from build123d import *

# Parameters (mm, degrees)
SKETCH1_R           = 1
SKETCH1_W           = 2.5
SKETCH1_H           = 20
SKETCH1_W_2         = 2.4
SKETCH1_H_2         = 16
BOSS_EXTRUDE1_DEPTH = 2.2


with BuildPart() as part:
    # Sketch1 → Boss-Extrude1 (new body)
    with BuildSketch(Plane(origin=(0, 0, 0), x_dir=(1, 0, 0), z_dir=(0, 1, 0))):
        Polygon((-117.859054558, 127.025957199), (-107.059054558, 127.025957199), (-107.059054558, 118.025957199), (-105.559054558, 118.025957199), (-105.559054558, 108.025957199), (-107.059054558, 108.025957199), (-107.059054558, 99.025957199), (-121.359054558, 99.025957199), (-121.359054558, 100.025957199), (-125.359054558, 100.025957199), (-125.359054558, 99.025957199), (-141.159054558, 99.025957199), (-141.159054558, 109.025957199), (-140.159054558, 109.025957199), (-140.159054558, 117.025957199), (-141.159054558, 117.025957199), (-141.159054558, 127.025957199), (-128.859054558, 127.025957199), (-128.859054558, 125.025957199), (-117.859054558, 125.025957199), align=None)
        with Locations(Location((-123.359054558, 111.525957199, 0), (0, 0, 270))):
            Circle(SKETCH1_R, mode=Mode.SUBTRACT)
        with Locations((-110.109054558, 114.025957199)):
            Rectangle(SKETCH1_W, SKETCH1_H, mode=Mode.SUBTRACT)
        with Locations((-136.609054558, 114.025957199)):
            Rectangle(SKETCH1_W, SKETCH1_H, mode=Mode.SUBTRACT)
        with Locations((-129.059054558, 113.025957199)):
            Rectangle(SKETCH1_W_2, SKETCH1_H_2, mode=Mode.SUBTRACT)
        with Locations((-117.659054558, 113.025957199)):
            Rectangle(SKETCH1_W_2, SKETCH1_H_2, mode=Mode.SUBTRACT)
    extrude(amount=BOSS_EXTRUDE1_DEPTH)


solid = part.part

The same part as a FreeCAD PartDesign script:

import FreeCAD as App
import Part
import Sketcher

doc = App.newDocument("Part")
body = doc.addObject("PartDesign::Body", "Body")

sketch1 = body.newObject("Sketcher::SketchObject", "Sketch")
sketch1.AttachmentSupport = (doc.getObject("XZ_Plane"), [""])
sketch1.MapMode = "FlatFace"
sketch1.addGeometry([
    Part.LineSegment(App.Vector(-107.1, -127, 0), App.Vector(-117.9, -127, 0)),
    Part.LineSegment(App.Vector(-117.9, -127, 0), App.Vector(-117.9, -125, 0)),
    Part.LineSegment(App.Vector(-117.9, -125, 0), App.Vector(-128.9, -125, 0)),
    Part.LineSegment(App.Vector(-128.9, -125, 0), App.Vector(-128.9, -127, 0)),
    Part.LineSegment(App.Vector(-128.9, -127, 0), App.Vector(-141.2, -127, 0)),
    Part.LineSegment(App.Vector(-141.2, -127, 0), App.Vector(-141.2, -117, 0)),
    Part.LineSegment(App.Vector(-141.2, -117, 0), App.Vector(-140.2, -117, 0)),
    Part.LineSegment(App.Vector(-140.2, -117, 0), App.Vector(-140.2, -109, 0)),
    Part.LineSegment(App.Vector(-140.2, -109, 0), App.Vector(-141.2, -109, 0)),
    Part.LineSegment(App.Vector(-141.2, -109, 0), App.Vector(-141.2, -99, 0)),
    Part.LineSegment(App.Vector(-141.2, -99, 0), App.Vector(-125.4, -99, 0)),
    Part.LineSegment(App.Vector(-125.4, -99, 0), App.Vector(-125.4, -100, 0)),
    Part.LineSegment(App.Vector(-125.4, -100, 0), App.Vector(-121.4, -100, 0)),
    Part.LineSegment(App.Vector(-121.4, -100, 0), App.Vector(-121.4, -99, 0)),
    Part.LineSegment(App.Vector(-121.4, -99, 0), App.Vector(-107.1, -99, 0)),
    Part.LineSegment(App.Vector(-107.1, -99, 0), App.Vector(-107.1, -108, 0)),
    Part.LineSegment(App.Vector(-107.1, -108, 0), App.Vector(-105.6, -108, 0)),
    Part.LineSegment(App.Vector(-105.6, -108, 0), App.Vector(-105.6, -118, 0)),
    Part.LineSegment(App.Vector(-105.6, -118, 0), App.Vector(-107.1, -118, 0)),
    Part.LineSegment(App.Vector(-107.1, -118, 0), App.Vector(-107.1, -127, 0)),
    Part.LineSegment(App.Vector(-118.9, -105, 0), App.Vector(-118.9, -121, 0)),
    Part.LineSegment(App.Vector(-118.9, -121, 0), App.Vector(-116.5, -121, 0)),
    Part.LineSegment(App.Vector(-116.5, -121, 0), App.Vector(-116.5, -105, 0)),
    Part.LineSegment(App.Vector(-116.5, -105, 0), App.Vector(-118.9, -105, 0)),
    Part.Circle(App.Vector(-123.4, -111.5, 0), App.Vector(0, 0, 1), 1),
    Part.LineSegment(App.Vector(-130.3, -105, 0), App.Vector(-130.3, -121, 0)),
    Part.LineSegment(App.Vector(-130.3, -121, 0), App.Vector(-127.9, -121, 0)),
    Part.LineSegment(App.Vector(-127.9, -121, 0), App.Vector(-127.9, -105, 0)),
    Part.LineSegment(App.Vector(-127.9, -105, 0), App.Vector(-130.3, -105, 0)),
    Part.LineSegment(App.Vector(-111.4, -104, 0), App.Vector(-111.4, -124, 0)),
    Part.LineSegment(App.Vector(-111.4, -124, 0), App.Vector(-108.9, -124, 0)),
    Part.LineSegment(App.Vector(-108.9, -124, 0), App.Vector(-108.9, -104, 0)),
    Part.LineSegment(App.Vector(-108.9, -104, 0), App.Vector(-111.4, -104, 0)),
    Part.LineSegment(App.Vector(-137.9, -104, 0), App.Vector(-137.9, -124, 0)),
    Part.LineSegment(App.Vector(-137.9, -124, 0), App.Vector(-135.4, -124, 0)),
    Part.LineSegment(App.Vector(-135.4, -124, 0), App.Vector(-135.4, -104, 0)),
    Part.LineSegment(App.Vector(-135.4, -104, 0), App.Vector(-137.9, -104, 0)),
], False)
sketch1.addConstraint([
    Sketcher.Constraint("Coincident", 0, 2, 1, 1),
    Sketcher.Constraint("Coincident", 1, 2, 2, 1),
    Sketcher.Constraint("Coincident", 2, 2, 3, 1),
    Sketcher.Constraint("Coincident", 3, 2, 4, 1),
    Sketcher.Constraint("Coincident", 4, 2, 5, 1),
    Sketcher.Constraint("Coincident", 5, 2, 6, 1),
    Sketcher.Constraint("Coincident", 6, 2, 7, 1),
    Sketcher.Constraint("Coincident", 7, 2, 8, 1),
    Sketcher.Constraint("Coincident", 8, 2, 9, 1),
    Sketcher.Constraint("Coincident", 9, 2, 10, 1),
    Sketcher.Constraint("Coincident", 10, 2, 11, 1),
    Sketcher.Constraint("Coincident", 11, 2, 12, 1),
    Sketcher.Constraint("Coincident", 12, 2, 13, 1),
    Sketcher.Constraint("Coincident", 13, 2, 14, 1),
    Sketcher.Constraint("Coincident", 14, 2, 15, 1),
    Sketcher.Constraint("Coincident", 15, 2, 16, 1),
    Sketcher.Constraint("Coincident", 16, 2, 17, 1),
    Sketcher.Constraint("Coincident", 17, 2, 18, 1),
    Sketcher.Constraint("Coincident", 18, 2, 19, 1),
    Sketcher.Constraint("Coincident", 19, 2, 0, 1),
    Sketcher.Constraint("Coincident", 20, 2, 21, 1),
    Sketcher.Constraint("Coincident", 21, 2, 22, 1),
    Sketcher.Constraint("Coincident", 22, 2, 23, 1),
    Sketcher.Constraint("Coincident", 23, 2, 20, 1),
    Sketcher.Constraint("Coincident", 25, 2, 26, 1),
    Sketcher.Constraint("Coincident", 26, 2, 27, 1),
    Sketcher.Constraint("Coincident", 27, 2, 28, 1),
    Sketcher.Constraint("Coincident", 28, 2, 25, 1),
    Sketcher.Constraint("Coincident", 29, 2, 30, 1),
    Sketcher.Constraint("Coincident", 30, 2, 31, 1),
    Sketcher.Constraint("Coincident", 31, 2, 32, 1),
    Sketcher.Constraint("Coincident", 32, 2, 29, 1),
    Sketcher.Constraint("Coincident", 33, 2, 34, 1),
    Sketcher.Constraint("Coincident", 34, 2, 35, 1),
    Sketcher.Constraint("Coincident", 35, 2, 36, 1),
    Sketcher.Constraint("Coincident", 36, 2, 33, 1),
    Sketcher.Constraint("Horizontal", 0),
    Sketcher.Constraint("Vertical", 1),
    Sketcher.Constraint("Horizontal", 2),
    Sketcher.Constraint("Vertical", 3),
    Sketcher.Constraint("Horizontal", 4),
    Sketcher.Constraint("Vertical", 5),
    Sketcher.Constraint("Horizontal", 6),
    Sketcher.Constraint("Vertical", 7),
    Sketcher.Constraint("Horizontal", 8),
    Sketcher.Constraint("Vertical", 9),
    Sketcher.Constraint("Horizontal", 10),
    Sketcher.Constraint("Vertical", 11),
    Sketcher.Constraint("Horizontal", 12),
    Sketcher.Constraint("Vertical", 13),
    Sketcher.Constraint("Horizontal", 14),
    Sketcher.Constraint("Vertical", 15),
    Sketcher.Constraint("Horizontal", 16),
    Sketcher.Constraint("Vertical", 17),
    Sketcher.Constraint("Horizontal", 18),
    Sketcher.Constraint("Vertical", 19),
    Sketcher.Constraint("Vertical", 20),
    Sketcher.Constraint("Horizontal", 21),
    Sketcher.Constraint("Vertical", 22),
    Sketcher.Constraint("Horizontal", 23),
    Sketcher.Constraint("Vertical", 25),
    Sketcher.Constraint("Horizontal", 26),
    Sketcher.Constraint("Vertical", 27),
    Sketcher.Constraint("Horizontal", 28),
    Sketcher.Constraint("Vertical", 29),
    Sketcher.Constraint("Horizontal", 30),
    Sketcher.Constraint("Vertical", 31),
    Sketcher.Constraint("Horizontal", 32),
    Sketcher.Constraint("Vertical", 33),
    Sketcher.Constraint("Horizontal", 34),
    Sketcher.Constraint("Vertical", 35),
    Sketcher.Constraint("Horizontal", 36),
    Sketcher.Constraint("Horizontal", 0, 2, 3, 2),
    Sketcher.Constraint("Horizontal", 10, 2, 13, 2),
    Sketcher.Constraint("Horizontal", 21, 2, 25, 2),
    Sketcher.Constraint("Horizontal", 23, 2, 27, 2),
    Sketcher.Constraint("Horizontal", 30, 2, 33, 2),
    Sketcher.Constraint("Horizontal", 32, 2, 35, 2),
    Sketcher.Constraint("Vertical", 5, 2, 8, 2),
    Sketcher.Constraint("Vertical", 15, 2, 18, 2),
    Sketcher.Constraint("Equal", 23, 26),
    Sketcher.Constraint("Equal", 32, 34),
    Sketcher.Constraint("Equal", 5, 9),
    Sketcher.Constraint("Equal", 8, 11),
    Sketcher.Constraint("Equal", 9, 17),
    Sketcher.Constraint("Equal", 15, 19),
    Sketcher.Constraint("Diameter", 24, 2.0),
    Sketcher.Constraint("DistanceX", 2, 2, 2, 1, 11.0),
    Sketcher.Constraint("DistanceX", 6, 1, 6, 2, 1.0),
    Sketcher.Constraint("DistanceX", 12, 1, 12, 2, 4.0),
    Sketcher.Constraint("DistanceY", 1, 1, 1, 2, 2.0),
    Sketcher.Constraint("DistanceY", 5, 1, 5, 2, 10.0),
    Sketcher.Constraint("DistanceY", 7, 1, 7, 2, 8.0),
    Sketcher.Constraint("DistanceY", 20, 2, 20, 1, 16.0),
    Sketcher.Constraint("DistanceY", 29, 2, 29, 1, 20.0),
    Sketcher.Constraint("DistanceX", 0, 2, 0, 1, 10.8),
    Sketcher.Constraint("DistanceX", 4, 2, 4, 1, 12.3),
    Sketcher.Constraint("DistanceX", 10, 1, 10, 2, 15.8),
    Sketcher.Constraint("DistanceX", 16, 1, 16, 2, 1.5),
    Sketcher.Constraint("DistanceX", 21, 1, 21, 2, 2.4),
    Sketcher.Constraint("DistanceX", 30, 1, 30, 2, 2.5),
    Sketcher.Constraint("DistanceX", 10, 2, 24, 3, 2.0),
    Sketcher.Constraint("DistanceX", 20, 2, 1, 2, 1.0),
    Sketcher.Constraint("DistanceY", 1, 2, 20, 2, 4.0),
    Sketcher.Constraint("DistanceX", 2, 2, 26, 2, 1.0),
    Sketcher.Constraint("DistanceY", 19, 2, 29, 2, 3.0),
    Sketcher.Constraint("DistanceX", 23, 2, 31, 2, 10.0),
    Sketcher.Constraint("DistanceX", 33, 2, 2, 2, 9.0),
    Sketcher.Constraint("DistanceY", 0, 2, 24, 3, 15.5),
    Sketcher.Constraint("DistanceX", 24, 3, -1, 1, 123.359055),
    Sketcher.Constraint("DistanceY", 24, 3, -1, 1, 111.525957),
])
pad1 = body.newObject("PartDesign::Pad", "Pad")
pad1.Profile = sketch1
pad1.Length = 2.2
pad1.Reversed = True

doc.recompute()
